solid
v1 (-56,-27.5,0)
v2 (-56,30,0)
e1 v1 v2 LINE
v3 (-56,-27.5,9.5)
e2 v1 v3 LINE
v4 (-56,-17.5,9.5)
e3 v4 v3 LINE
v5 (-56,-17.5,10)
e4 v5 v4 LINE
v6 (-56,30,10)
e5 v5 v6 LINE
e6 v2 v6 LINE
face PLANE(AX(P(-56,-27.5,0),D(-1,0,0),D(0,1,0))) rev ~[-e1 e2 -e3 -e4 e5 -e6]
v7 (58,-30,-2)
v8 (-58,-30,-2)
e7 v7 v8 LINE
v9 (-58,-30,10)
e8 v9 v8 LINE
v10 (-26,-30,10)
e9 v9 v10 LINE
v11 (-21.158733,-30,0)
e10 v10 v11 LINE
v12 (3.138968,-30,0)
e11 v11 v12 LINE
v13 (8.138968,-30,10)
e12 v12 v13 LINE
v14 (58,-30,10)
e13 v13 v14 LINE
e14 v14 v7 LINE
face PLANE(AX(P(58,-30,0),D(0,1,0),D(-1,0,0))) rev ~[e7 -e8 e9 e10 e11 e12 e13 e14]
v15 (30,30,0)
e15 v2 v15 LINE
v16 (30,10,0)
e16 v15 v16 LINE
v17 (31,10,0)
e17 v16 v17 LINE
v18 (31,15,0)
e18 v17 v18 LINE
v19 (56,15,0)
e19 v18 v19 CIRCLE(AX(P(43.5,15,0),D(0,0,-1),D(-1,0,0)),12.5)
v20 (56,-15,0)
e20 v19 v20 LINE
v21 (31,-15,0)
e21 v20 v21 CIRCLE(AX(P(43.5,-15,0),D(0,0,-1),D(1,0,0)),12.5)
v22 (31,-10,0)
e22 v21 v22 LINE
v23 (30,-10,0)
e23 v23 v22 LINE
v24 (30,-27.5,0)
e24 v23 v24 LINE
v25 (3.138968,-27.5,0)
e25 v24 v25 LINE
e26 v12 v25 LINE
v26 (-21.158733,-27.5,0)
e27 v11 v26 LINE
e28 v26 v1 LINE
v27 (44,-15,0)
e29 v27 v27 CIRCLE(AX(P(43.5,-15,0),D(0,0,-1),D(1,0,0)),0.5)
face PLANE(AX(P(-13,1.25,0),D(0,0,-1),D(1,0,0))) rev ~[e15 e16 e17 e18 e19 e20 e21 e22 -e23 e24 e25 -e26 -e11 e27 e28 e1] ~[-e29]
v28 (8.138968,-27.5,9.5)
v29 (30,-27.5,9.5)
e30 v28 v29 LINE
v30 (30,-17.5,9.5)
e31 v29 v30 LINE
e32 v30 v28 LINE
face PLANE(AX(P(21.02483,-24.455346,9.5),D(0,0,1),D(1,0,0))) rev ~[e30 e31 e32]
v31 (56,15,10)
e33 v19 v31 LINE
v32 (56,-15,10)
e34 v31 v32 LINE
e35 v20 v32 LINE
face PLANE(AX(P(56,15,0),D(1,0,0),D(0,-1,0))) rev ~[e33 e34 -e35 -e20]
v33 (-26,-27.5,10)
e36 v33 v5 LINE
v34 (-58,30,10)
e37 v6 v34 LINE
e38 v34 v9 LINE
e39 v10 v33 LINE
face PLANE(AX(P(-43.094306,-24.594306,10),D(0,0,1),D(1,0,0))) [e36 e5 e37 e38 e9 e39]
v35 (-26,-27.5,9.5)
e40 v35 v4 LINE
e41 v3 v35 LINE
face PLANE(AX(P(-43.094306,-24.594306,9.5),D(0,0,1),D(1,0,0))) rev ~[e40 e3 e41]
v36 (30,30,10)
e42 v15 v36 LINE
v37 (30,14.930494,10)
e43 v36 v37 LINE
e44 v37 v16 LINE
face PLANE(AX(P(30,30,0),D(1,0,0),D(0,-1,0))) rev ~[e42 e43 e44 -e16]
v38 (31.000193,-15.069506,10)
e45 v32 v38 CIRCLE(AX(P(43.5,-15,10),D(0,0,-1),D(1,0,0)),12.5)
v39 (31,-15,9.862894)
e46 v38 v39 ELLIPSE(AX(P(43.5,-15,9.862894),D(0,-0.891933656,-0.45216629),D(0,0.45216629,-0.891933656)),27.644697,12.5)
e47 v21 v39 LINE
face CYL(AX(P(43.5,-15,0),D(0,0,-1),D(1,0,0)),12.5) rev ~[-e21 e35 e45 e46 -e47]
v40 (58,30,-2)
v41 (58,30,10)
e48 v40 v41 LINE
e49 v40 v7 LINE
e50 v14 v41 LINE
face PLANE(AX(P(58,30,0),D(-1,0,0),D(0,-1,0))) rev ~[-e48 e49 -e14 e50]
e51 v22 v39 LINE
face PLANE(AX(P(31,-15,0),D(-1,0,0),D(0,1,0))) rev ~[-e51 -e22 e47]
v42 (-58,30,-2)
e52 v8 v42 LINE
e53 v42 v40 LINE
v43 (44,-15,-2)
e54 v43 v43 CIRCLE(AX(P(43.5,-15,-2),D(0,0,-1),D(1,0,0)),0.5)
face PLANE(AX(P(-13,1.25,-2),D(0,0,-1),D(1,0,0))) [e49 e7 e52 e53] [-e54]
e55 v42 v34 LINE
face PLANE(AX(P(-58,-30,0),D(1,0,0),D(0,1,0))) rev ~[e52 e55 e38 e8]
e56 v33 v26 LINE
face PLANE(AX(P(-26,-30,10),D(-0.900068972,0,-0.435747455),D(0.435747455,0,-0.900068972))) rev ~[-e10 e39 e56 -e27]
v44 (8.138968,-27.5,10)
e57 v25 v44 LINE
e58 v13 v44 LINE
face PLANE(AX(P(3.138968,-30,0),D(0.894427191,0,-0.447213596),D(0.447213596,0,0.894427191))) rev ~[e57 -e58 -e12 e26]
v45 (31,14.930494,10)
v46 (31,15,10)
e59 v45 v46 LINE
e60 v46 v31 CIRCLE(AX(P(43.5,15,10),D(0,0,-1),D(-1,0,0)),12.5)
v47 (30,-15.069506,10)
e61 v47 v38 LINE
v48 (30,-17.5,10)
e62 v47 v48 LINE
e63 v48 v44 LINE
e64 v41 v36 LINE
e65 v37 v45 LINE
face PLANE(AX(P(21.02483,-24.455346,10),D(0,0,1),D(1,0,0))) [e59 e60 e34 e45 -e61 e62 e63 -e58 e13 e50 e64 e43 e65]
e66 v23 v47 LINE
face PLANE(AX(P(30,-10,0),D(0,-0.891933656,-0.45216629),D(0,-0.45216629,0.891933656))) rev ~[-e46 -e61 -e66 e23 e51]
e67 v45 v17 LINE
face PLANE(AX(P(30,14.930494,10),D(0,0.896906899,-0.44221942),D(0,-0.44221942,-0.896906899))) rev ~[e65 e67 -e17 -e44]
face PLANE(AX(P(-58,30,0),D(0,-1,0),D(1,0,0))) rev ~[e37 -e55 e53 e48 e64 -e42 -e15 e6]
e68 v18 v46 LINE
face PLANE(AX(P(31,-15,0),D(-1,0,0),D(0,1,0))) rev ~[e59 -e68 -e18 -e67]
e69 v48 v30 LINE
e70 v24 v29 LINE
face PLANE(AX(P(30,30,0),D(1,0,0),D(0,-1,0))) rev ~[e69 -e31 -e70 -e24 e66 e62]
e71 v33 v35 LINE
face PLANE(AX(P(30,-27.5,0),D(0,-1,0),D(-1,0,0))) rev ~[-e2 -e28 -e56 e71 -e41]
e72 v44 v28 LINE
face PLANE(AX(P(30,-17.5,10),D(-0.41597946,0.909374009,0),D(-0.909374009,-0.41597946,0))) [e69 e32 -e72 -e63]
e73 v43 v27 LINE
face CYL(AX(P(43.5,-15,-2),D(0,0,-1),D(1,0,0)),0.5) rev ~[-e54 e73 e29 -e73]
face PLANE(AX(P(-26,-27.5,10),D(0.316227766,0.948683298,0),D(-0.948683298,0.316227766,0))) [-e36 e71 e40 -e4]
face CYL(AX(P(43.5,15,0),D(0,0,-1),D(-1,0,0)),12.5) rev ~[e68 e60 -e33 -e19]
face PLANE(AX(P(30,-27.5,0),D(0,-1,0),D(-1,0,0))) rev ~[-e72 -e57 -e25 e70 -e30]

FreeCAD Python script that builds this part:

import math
import FreeCAD as App
import Part
import Sketcher

V = App.Vector
Q = App.Units.Quantity


def add_polygon(sketch, points):
    """Adds a closed chain of lines whose ends are joined by coincident constraints."""
    first, n = sketch.GeometryCount, len(points)
    for a, b in zip(points, points[1:] + points[:1]):
        sketch.addGeometry(Part.LineSegment(App.Vector(*a, 0), App.Vector(*b, 0)), False)
    for i in range(n):
        sketch.addConstraint(Sketcher.Constraint("Coincident", first + i, 2, first + (i + 1) % n, 1))

doc = App.newDocument("Part")
body = doc.addObject("PartDesign::Body", "Body")

# Sketch on XY plane
sketch1 = body.newObject("Sketcher::SketchObject", "Sketch")
sketch1.AttachmentSupport = (doc.getObject("XY_Plane"), [""])
sketch1.MapMode = "FlatFace"
add_polygon(sketch1, [(-58, -30), (58, -30), (58, 30), (30, 30), (30, -27.5), (-56, -27.5), (-56, 30), (-58, 30)])  # lines 0-7
sketch1.addGeometry(Part.LineSegment(V(31, -15, 0), V(31, 15, 0)), False)  # 8
sketch1.addGeometry(Part.ArcOfCircle(Part.Circle(V(43.5, 15, 0), V(0, 0, 1), 12.5), math.radians(0), math.radians(180)), False)  # 9
sketch1.addGeometry(Part.LineSegment(V(56, 15, 0), V(56, -15, 0)), False)  # 10
sketch1.addGeometry(Part.ArcOfCircle(Part.Circle(V(43.5, -15, 0), V(0, 0, 1), 12.5), math.radians(180), math.radians(360)), False)  # 11
sketch1.addConstraint([
    Sketcher.Constraint("Tangent", 8, 2, 9, 2),
    Sketcher.Constraint("Tangent", 9, 1, 10, 1),
    Sketcher.Constraint("Tangent", 10, 2, 11, 2),
    Sketcher.Constraint("Tangent", 11, 1, 8, 1),
    Sketcher.Constraint("Horizontal", 0),
    Sketcher.Constraint("Vertical", 1),
    Sketcher.Constraint("Horizontal", 2),
    Sketcher.Constraint("Vertical", 3),
    Sketcher.Constraint("Horizontal", 4),
    Sketcher.Constraint("Vertical", 5),
    Sketcher.Constraint("Horizontal", 6),
    Sketcher.Constraint("Vertical", 7),
    Sketcher.Constraint("Vertical", 8),
    Sketcher.Constraint("Vertical", 10),
    Sketcher.Constraint("Symmetric", 0, 2, 6, 2, -1, 1),
    Sketcher.Constraint("Horizontal", 2, 2, 5, 2),
    Sketcher.Constraint("Radius", 9, Q("12.5 mm")),
    Sketcher.Constraint("DistanceX", 0, 1, 0, 2, Q("116 mm")),
    Sketcher.Constraint("DistanceX", 2, 2, 2, 1, Q("28 mm")),
    Sketcher.Constraint("DistanceX", 4, 2, 4, 1, Q("86 mm")),
    Sketcher.Constraint("DistanceY", 1, 1, 1, 2, Q("60 mm")),
    Sketcher.Constraint("DistanceY", 8, 1, 8, 2, Q("30 mm")),
    Sketcher.Constraint("DistanceY", 3, 2, 3, 1, Q("57.5 mm")),
    Sketcher.Constraint("DistanceY", -1, 1, 9, 3, Q("15 mm")),
    Sketcher.Constraint("DistanceX", -1, 1, 8, 2, Q("31 mm")),
])
pad1 = body.newObject("PartDesign::Pad", "Pad")
pad1.Profile = sketch1
pad1.Length = 10

# Sketch on XY plane
sketch2 = body.newObject("Sketcher::SketchObject", "Sketch001")
sketch2.AttachmentSupport = (doc.getObject("XY_Plane"), [""])
sketch2.MapMode = "FlatFace"
add_polygon(sketch2, [(58, 30), (58, -30), (-58, -30), (-58, 30)])  # lines 0-3
sketch2.addConstraint([
    Sketcher.Constraint("Vertical", 0),
    Sketcher.Constraint("Horizontal", 1),
    Sketcher.Constraint("Vertical", 2),
    Sketcher.Constraint("Horizontal", 3),
    Sketcher.Constraint("Symmetric", 0, 2, 2, 2, -1, 1),
    Sketcher.Constraint("DistanceX", 1, 2, 1, 1, Q("116 mm")),
    Sketcher.Constraint("DistanceY", 0, 2, 0, 1, Q("60 mm")),
])
pad2 = body.newObject("PartDesign::Pad", "Pad001")
pad2.Profile = sketch2
pad2.Length = 2
pad2.Reversed = True

# Sketch on XZ plane
sketch3 = body.newObject("Sketcher::SketchObject", "Sketch002")
sketch3.AttachmentSupport = (doc.getObject("XZ_Plane"), [""])
sketch3.MapMode = "FlatFace"
sketch3.AttachmentOffset = App.Placement(V(0, 0, 30), App.Rotation())
add_polygon(sketch3, [(8, 10), (-26, 10), (-21, 0), (3, 0)])  # lines 0-3
sketch3.addConstraint([
    Sketcher.Constraint("Horizontal", 0),
    Sketcher.Constraint("Horizontal", 2),
    Sketcher.Constraint("PointOnObject", 1, 2, -1),
    Sketcher.Constraint("DistanceX", 0, 2, -1, 1, Q("26 mm")),
    Sketcher.Constraint("DistanceY", -1, 1, 0, 2, Q("10 mm")),
    Sketcher.Constraint("DistanceX", 2, 2, 3, 2, Q("5 mm")),
    Sketcher.Constraint("DistanceX", 2, 1, 2, 2, Q("24.297701 mm")),
    Sketcher.Constraint("DistanceX", 0, 2, 0, 1, Q("34.138968 mm")),
])
pocket1 = body.newObject("PartDesign::Pocket", "Pocket")
pocket1.Profile = sketch3
pocket1.Type = "ThroughAll"

# Sketch on XY plane
sketch4 = body.newObject("Sketcher::SketchObject", "Sketch003")
sketch4.AttachmentSupport = (doc.getObject("XY_Plane"), [""])
sketch4.MapMode = "FlatFace"
sketch4.AttachmentOffset = App.Placement(V(0, 0, 10), App.Rotation())
add_polygon(sketch4, [(-56, -28), (-26, -28), (-56, -18)])  # lines 0-2
sketch4.addConstraint([
    Sketcher.Constraint("Horizontal", 0),
    Sketcher.Constraint("Vertical", 2),
    Sketcher.Constraint("DistanceX", 0, 1, 0, 2, Q("30 mm")),
    Sketcher.Constraint("DistanceY", 2, 2, 2, 1, Q("10 mm")),
    Sketcher.Constraint("DistanceX", 0, 2, -1, 1, Q("26 mm")),
    Sketcher.Constraint("DistanceY", 0, 2, -1, 1, Q("27.5 mm")),
])
pad3 = body.newObject("PartDesign::Pad", "Pad002")
pad3.Profile = sketch4
pad3.Length = 0.5
pad3.Reversed = True

# Sketch on XY plane
sketch5 = body.newObject("Sketcher::SketchObject", "Sketch004")
sketch5.AttachmentSupport = (doc.getObject("XY_Plane"), [""])
sketch5.MapMode = "FlatFace"
sketch5.AttachmentOffset = App.Placement(V(0, 0, 10), App.Rotation())
add_polygon(sketch5, [(30, -18), (8, -28), (30, -28)])  # lines 0-2
sketch5.addConstraint([
    Sketcher.Constraint("Horizontal", 1),
    Sketcher.Constraint("Vertical", 2),
    Sketcher.Constraint("DistanceY", 2, 1, 2, 2, Q("10 mm")),
    Sketcher.Constraint("DistanceX", -1, 1, 1, 2, Q("30 mm")),
    Sketcher.Constraint("DistanceY", 0, 2, -1, 1, Q("27.5 mm")),
    Sketcher.Constraint("DistanceX", 1, 1, 1, 2, Q("21.861032 mm")),
])
pad4 = body.newObject("PartDesign::Pad", "Pad003")
pad4.Profile = sketch5
pad4.Length = 0.5
pad4.Reversed = True

# Sketch on XY plane
sketch6 = body.newObject("Sketcher::SketchObject", "Sketch005")
sketch6.AttachmentSupport = (doc.getObject("XY_Plane"), [""])
sketch6.MapMode = "FlatFace"
sketch6.AttachmentOffset = App.Placement(V(0, 0, -2), App.Rotation())
sketch6.addGeometry(Part.Circle(V(43.5, -15, 0), V(0, 0, 1), 0.5), False)
sketch6.addConstraint([
    Sketcher.Constraint("Diameter", 0, Q("1 mm")),
    Sketcher.Constraint("DistanceY", 0, 3, -1, 1, Q("15 mm")),
    Sketcher.Constraint("DistanceX", -1, 1, 0, 3, Q("43.5 mm")),
])
pocket2 = body.newObject("PartDesign::Pocket", "Pocket001")
pocket2.Profile = sketch6
pocket2.Type = "ThroughAll"
pocket2.Reversed = True

# Sketch on YZ plane
sketch7 = body.newObject("Sketcher::SketchObject", "Sketch006")
sketch7.AttachmentSupport = (doc.getObject("YZ_Plane"), [""])
sketch7.MapMode = "FlatFace"
sketch7.AttachmentOffset = App.Placement(V(0, 0, 30), App.Rotation())
add_polygon(sketch7, [(-15, 10), (15, 10), (10, 0), (-10, 0)])  # lines 0-3
sketch7.addConstraint([
    Sketcher.Constraint("Horizontal", 0),
    Sketcher.Constraint("Horizontal", 2),
    Sketcher.Constraint("Symmetric", 1, 2, 2, 2, -1, 1),
    Sketcher.Constraint("DistanceX", 0, 1, 0, 2, Q("30 mm")),
    Sketcher.Constraint("DistanceX", 2, 2, 2, 1, Q("20 mm")),
    Sketcher.Constraint("DistanceY", -1, 1, 0, 2, Q("10 mm")),
    Sketcher.Constraint("Distance", 1, Q("11.149429 mm")),
])
pocket3 = body.newObject("PartDesign::Pocket", "Pocket002")
pocket3.Profile = sketch7
pocket3.Length = 3
pocket3.Reversed = True

doc.recompute()
